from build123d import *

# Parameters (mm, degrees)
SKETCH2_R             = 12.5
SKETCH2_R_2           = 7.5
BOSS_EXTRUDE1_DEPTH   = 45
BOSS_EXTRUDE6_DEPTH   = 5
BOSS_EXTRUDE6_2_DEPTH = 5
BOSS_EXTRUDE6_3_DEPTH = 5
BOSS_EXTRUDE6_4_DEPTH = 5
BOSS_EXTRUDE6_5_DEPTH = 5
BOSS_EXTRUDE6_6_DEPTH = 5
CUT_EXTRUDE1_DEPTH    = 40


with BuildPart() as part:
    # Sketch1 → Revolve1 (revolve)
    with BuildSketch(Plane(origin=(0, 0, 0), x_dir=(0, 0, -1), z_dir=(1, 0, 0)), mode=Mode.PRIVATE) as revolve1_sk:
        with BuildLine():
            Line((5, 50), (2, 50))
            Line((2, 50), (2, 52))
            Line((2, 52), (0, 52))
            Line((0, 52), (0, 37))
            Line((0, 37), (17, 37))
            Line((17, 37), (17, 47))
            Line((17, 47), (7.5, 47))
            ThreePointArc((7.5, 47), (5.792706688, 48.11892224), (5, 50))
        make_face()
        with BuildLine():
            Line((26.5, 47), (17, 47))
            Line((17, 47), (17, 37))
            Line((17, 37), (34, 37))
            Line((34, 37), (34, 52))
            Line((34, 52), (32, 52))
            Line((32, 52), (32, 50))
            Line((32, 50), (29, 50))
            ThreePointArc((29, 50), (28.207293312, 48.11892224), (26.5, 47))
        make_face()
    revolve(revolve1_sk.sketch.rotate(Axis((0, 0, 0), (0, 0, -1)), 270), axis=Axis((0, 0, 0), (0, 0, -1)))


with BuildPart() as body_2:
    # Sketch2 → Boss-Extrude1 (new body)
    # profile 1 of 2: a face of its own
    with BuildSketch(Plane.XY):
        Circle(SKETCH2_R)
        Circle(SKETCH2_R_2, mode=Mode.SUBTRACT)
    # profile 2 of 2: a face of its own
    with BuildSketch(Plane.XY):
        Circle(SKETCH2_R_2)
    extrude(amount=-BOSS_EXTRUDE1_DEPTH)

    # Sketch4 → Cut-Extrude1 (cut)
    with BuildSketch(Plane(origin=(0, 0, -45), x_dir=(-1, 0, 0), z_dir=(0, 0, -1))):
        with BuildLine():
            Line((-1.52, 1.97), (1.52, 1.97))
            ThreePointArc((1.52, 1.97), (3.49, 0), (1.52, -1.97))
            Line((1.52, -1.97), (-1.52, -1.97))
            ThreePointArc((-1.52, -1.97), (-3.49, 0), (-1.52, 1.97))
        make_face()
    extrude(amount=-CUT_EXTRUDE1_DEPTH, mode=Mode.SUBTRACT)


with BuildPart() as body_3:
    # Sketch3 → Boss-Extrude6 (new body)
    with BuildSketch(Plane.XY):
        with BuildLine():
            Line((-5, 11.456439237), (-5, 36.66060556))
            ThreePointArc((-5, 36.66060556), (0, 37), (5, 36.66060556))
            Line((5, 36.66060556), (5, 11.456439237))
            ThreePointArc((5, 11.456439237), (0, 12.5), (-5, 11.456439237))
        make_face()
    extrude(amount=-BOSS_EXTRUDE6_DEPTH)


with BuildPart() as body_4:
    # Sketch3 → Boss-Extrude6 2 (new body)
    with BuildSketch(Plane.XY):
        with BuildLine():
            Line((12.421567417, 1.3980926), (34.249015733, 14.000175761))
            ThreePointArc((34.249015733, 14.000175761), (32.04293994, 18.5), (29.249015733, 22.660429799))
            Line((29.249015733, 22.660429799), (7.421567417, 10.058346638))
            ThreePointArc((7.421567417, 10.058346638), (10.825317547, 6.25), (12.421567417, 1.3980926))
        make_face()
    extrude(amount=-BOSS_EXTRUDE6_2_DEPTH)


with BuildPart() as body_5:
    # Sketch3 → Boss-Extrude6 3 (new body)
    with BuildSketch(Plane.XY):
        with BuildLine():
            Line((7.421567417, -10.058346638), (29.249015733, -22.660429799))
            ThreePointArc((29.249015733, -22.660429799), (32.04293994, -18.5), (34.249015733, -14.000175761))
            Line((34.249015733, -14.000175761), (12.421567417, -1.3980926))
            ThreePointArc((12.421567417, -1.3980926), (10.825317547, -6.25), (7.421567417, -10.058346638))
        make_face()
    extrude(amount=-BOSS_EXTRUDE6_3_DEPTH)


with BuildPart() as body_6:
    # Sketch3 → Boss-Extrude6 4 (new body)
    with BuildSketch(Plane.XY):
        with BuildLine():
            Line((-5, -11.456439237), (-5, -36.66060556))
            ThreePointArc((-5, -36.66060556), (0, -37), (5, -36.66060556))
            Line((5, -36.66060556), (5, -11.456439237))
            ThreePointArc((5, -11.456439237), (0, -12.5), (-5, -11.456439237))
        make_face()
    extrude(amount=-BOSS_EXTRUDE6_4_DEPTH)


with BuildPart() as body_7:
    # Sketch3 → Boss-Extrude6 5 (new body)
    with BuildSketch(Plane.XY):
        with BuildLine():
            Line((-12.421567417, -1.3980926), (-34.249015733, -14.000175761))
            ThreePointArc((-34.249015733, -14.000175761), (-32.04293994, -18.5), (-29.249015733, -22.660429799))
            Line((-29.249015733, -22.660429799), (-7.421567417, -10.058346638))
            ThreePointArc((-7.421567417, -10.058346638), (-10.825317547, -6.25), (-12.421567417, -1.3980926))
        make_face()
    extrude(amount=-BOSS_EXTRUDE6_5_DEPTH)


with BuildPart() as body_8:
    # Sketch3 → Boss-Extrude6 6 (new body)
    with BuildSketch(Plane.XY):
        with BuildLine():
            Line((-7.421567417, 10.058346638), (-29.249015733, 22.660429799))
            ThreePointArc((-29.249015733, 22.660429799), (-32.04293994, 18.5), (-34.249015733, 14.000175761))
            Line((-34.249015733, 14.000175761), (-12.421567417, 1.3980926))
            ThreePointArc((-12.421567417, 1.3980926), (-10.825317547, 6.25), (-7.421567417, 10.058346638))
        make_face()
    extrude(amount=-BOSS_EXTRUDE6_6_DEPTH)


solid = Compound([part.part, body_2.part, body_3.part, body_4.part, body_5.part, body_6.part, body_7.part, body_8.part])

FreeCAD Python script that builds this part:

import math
import FreeCAD as App
import Part
import Sketcher
Q = App.Units.Quantity

doc = App.newDocument("Part")
body = doc.addObject("PartDesign::Body", "Body")

# Sketch on YZ plane
sketch1 = doc.addObject("Sketcher::SketchObject", "Sketch")
body.addObject(sketch1)
sketch1.AttachmentSupport = (doc.YZ_Plane, [""])
sketch1.MapMode = "FlatFace"
sketch1.addGeometry(Part.LineSegment(App.Vector(50, -5, 0), App.Vector(50, -2, 0)), False)
sketch1.addGeometry(Part.LineSegment(App.Vector(50, -2, 0), App.Vector(52, -2, 0)), False)
sketch1.addGeometry(Part.LineSegment(App.Vector(52, -2, 0), App.Vector(52, 0, 0)), False)
sketch1.addGeometry(Part.LineSegment(App.Vector(52, 0, 0), App.Vector(37, 0, 0)), False)
sketch1.addGeometry(Part.LineSegment(App.Vector(37, 0, 0), App.Vector(37, -34, 0)), False)
sketch1.addGeometry(Part.LineSegment(App.Vector(37, -34, 0), App.Vector(52, -34, 0)), False)
sketch1.addGeometry(Part.LineSegment(App.Vector(52, -34, 0), App.Vector(52, -32, 0)), False)
sketch1.addGeometry(Part.LineSegment(App.Vector(52, -32, 0), App.Vector(50, -32, 0)), False)
sketch1.addGeometry(Part.LineSegment(App.Vector(50, -32, 0), App.Vector(50, -29, 0)), False)
sketch1.addGeometry(Part.ArcOfCircle(Part.Circle(App.Vector(50.4, -25.5, 0), App.Vector(0, 0, 1), 3.5), math.radians(-164), math.radians(-96)), False)
sketch1.addGeometry(Part.LineSegment(App.Vector(47, -26.5, 0), App.Vector(47, -7.5, 0)), False)
sketch1.addGeometry(Part.ArcOfCircle(Part.Circle(App.Vector(50.4, -8.5, 0), App.Vector(0, 0, 1), 3.5), math.radians(96), math.radians(164)), False)
sketch1.addConstraint(Sketcher.Constraint("Coincident", 0, 2, 1, 1))
sketch1.addConstraint(Sketcher.Constraint("Coincident", 1, 2, 2, 1))
sketch1.addConstraint(Sketcher.Constraint("Coincident", 2, 2, 3, 1))
sketch1.addConstraint(Sketcher.Constraint("Coincident", 3, 2, 4, 1))
sketch1.addConstraint(Sketcher.Constraint("Coincident", 4, 2, 5, 1))
sketch1.addConstraint(Sketcher.Constraint("Coincident", 5, 2, 6, 1))
sketch1.addConstraint(Sketcher.Constraint("Coincident", 6, 2, 7, 1))
sketch1.addConstraint(Sketcher.Constraint("Coincident", 7, 2, 8, 1))
sketch1.addConstraint(Sketcher.Constraint("Coincident", 8, 2, 9, 2))
sketch1.addConstraint(Sketcher.Constraint("Coincident", 9, 1, 10, 1))
sketch1.addConstraint(Sketcher.Constraint("Coincident", 10, 2, 11, 2))
sketch1.addConstraint(Sketcher.Constraint("Coincident", 11, 1, 0, 1))
sketch1.addConstraint(Sketcher.Constraint("Vertical", 0))
sketch1.addConstraint(Sketcher.Constraint("Horizontal", 1))
sketch1.addConstraint(Sketcher.Constraint("Vertical", 2))
sketch1.addConstraint(Sketcher.Constraint("Horizontal", 3))
sketch1.addConstraint(Sketcher.Constraint("Vertical", 4))
sketch1.addConstraint(Sketcher.Constraint("Horizontal", 5))
sketch1.addConstraint(Sketcher.Constraint("Vertical", 6))
sketch1.addConstraint(Sketcher.Constraint("Horizontal", 7))
sketch1.addConstraint(Sketcher.Constraint("Vertical", 8))
sketch1.addConstraint(Sketcher.Constraint("Vertical", 10))
sketch1.addConstraint(Sketcher.Constraint("Equal", 9, 11))
sketch1.addConstraint(Sketcher.Constraint("PointOnObject", 2, 2, -1))
sketch1.addConstraint(Sketcher.Constraint("Vertical", 9, 3, 11, 3))
sketch1.addConstraint(Sketcher.Constraint("Vertical", 2, 2, 5, 2))
sketch1.addConstraint(Sketcher.Constraint("Vertical", 0, 2, 7, 2))
sketch1.addConstraint(Sketcher.Constraint("Equal", 7, 2))
sketch1.addConstraint(Sketcher.Constraint("Equal", 2, 6))
sketch1.addConstraint(Sketcher.Constraint("Equal", 0, 8))
sketch1.addConstraint(Sketcher.Constraint("Radius", 9, 3.5))
sketch1.addConstraint(Sketcher.Constraint("DistanceX", 1, 1, 1, 2, 2.0))
sketch1.addConstraint(Sketcher.Constraint("DistanceX", 3, 2, 3, 1, 15.0))
sketch1.addConstraint(Sketcher.Constraint("DistanceY", 0, 1, 0, 2, 3.0))
sketch1.addConstraint(Sketcher.Constraint("DistanceY", 4, 2, 4, 1, 34.0))
sketch1.addConstraint(Sketcher.Constraint("DistanceY", 10, 1, 10, 2, 19.0))
sketch1.addConstraint(Sketcher.Constraint("DistanceX", -1, 1, 0, 2, 50.0))
sketch1.addConstraint(Sketcher.Constraint("DistanceX", -1, 1, 9, 1, 47.0))
revolution = doc.addObject("PartDesign::Revolution", "Revolution")
body.addObject(revolution)
revolution.Profile = sketch1
revolution.ReferenceAxis = (sketch1, ["V_Axis"])
revolution.Angle = 360
body2 = doc.addObject("PartDesign::Body", "Body001")

# Sketch on XY plane
sketch2 = doc.addObject("Sketcher::SketchObject", "Sketch001")
body2.addObject(sketch2)
sketch2.AttachmentSupport = (doc.getObject("XY_Plane001"), [""])
sketch2.MapMode = "FlatFace"
sketch2.addGeometry(Part.Circle(App.Vector(0, 0, 0), App.Vector(0, 0, 1), 12), False)
sketch2.addConstraint(Sketcher.Constraint("Coincident", 0, 3, -1, 1))
sketch2.addConstraint(Sketcher.Constraint("Diameter", 0, 25.0))
pad1 = doc.addObject("PartDesign::Pad", "Pad")
body2.addObject(pad1)
pad1.Profile = sketch2
pad1.Length = 45
pad1.Reversed = True

# Sketch on XY plane
sketch3 = doc.addObject("Sketcher::SketchObject", "Sketch002")
body2.addObject(sketch3)
sketch3.AttachmentSupport = (doc.getObject("XY_Plane001"), [""])
sketch3.MapMode = "FlatFace"
sketch3.AttachmentOffset = App.Placement(App.Vector(0, 0, -45), App.Rotation())
sketch3.addGeometry(Part.LineSegment(App.Vector(-1.5, 2, 0), App.Vector(1.5, 2, 0)), False)
sketch3.addGeometry(Part.ArcOfCircle(Part.Circle(App.Vector(1.5, 0, 0), App.Vector(0, 0, 1), 2), math.radians(-90), math.radians(90)), False)
sketch3.addGeometry(Part.LineSegment(App.Vector(1.5, -2, 0), App.Vector(-1.5, -2, 0)), False)
sketch3.addGeometry(Part.ArcOfCircle(Part.Circle(App.Vector(-1.5, 0, 0), App.Vector(0, 0, 1), 2), math.radians(90), math.radians(270)), False)
sketch3.addConstraint(Sketcher.Constraint("Tangent", 0, 2, 1, 2))
sketch3.addConstraint(Sketcher.Constraint("Tangent", 1, 1, 2, 1))
sketch3.addConstraint(Sketcher.Constraint("Tangent", 2, 2, 3, 2))
sketch3.addConstraint(Sketcher.Constraint("Tangent", 3, 1, 0, 1))
sketch3.addConstraint(Sketcher.Constraint("Horizontal", 0))
sketch3.addConstraint(Sketcher.Constraint("Horizontal", 2))
sketch3.addConstraint(Sketcher.Constraint("Symmetric", 1, 3, 3, 3, -1, 1))
sketch3.addConstraint(Sketcher.Constraint("Radius", 1, 1.97))
sketch3.addConstraint(Sketcher.Constraint("DistanceX", 0, 1, 0, 2, 3.04))
pocket1 = doc.addObject("PartDesign::Pocket", "Pocket")
body2.addObject(pocket1)
pocket1.Profile = sketch3
pocket1.Length = 40
pocket1.Reversed = True
body3 = doc.addObject("PartDesign::Body", "Body002")

# Sketch on XY plane
sketch4 = doc.addObject("Sketcher::SketchObject", "Sketch003")
body3.addObject(sketch4)
sketch4.AttachmentSupport = (doc.getObject("XY_Plane002"), [""])
sketch4.MapMode = "FlatFace"
sketch4.addGeometry(Part.LineSegment(App.Vector(-5, 37, 0), App.Vector(-5, 11, 0)), False)
sketch4.addGeometry(Part.ArcOfCircle(Part.Circle(App.Vector(0, 0, 0), App.Vector(0, 0, 1), 12), math.radians(66), math.radians(114)), False)
sketch4.addGeometry(Part.LineSegment(App.Vector(5, 11, 0), App.Vector(5, 37, 0)), False)
sketch4.addGeometry(Part.ArcOfCircle(Part.Circle(App.Vector(0, 0, 0), App.Vector(0, 0, 1), 37), math.radians(82.23), math.radians(97.77)), False)
sketch4.addConstraint(Sketcher.Constraint("Coincident", 0, 2, 1, 2))
sketch4.addConstraint(Sketcher.Constraint("Coincident", 1, 1, 2, 1))
sketch4.addConstraint(Sketcher.Constraint("Coincident", 2, 2, 3, 1))
sketch4.addConstraint(Sketcher.Constraint("Coincident", 3, 2, 0, 1))
sketch4.addConstraint(Sketcher.Constraint("Vertical", 0))
sketch4.addConstraint(Sketcher.Constraint("Vertical", 2))
sketch4.addConstraint(Sketcher.Constraint("Coincident", 1, 3, -1, 1))
sketch4.addConstraint(Sketcher.Constraint("Coincident", 3, 3, -1, 1))
sketch4.addConstraint(Sketcher.Constraint("Horizontal", 0, 2, 1, 1))
sketch4.addConstraint(Sketcher.Constraint("Radius", 3, 37.0))
sketch4.addConstraint(Sketcher.Constraint("Radius", 1, 12.5))
sketch4.addConstraint(Sketcher.Constraint("DistanceX", 0, 2, -1, 1, 5.0))
pad2 = doc.addObject("PartDesign::Pad", "Pad001")
body3.addObject(pad2)
pad2.Profile = sketch4
pad2.Length = 5
pad2.Reversed = True
body4 = doc.addObject("PartDesign::Body", "Body003")

# Sketch on XY plane
sketch5 = doc.addObject("Sketcher::SketchObject", "Sketch004")
body4.addObject(sketch5)
sketch5.AttachmentSupport = (doc.getObject("XY_Plane003"), [""])
sketch5.MapMode = "FlatFace"
sketch5.addGeometry(Part.LineSegment(App.Vector(12, 1, 0), App.Vector(34, 14, 0)), False)
sketch5.addGeometry(Part.ArcOfCircle(Part.Circle(App.Vector(0, 0, 0), App.Vector(0, 0, 1), 37), math.radians(22.23), math.radians(37.77)), False)
sketch5.addGeometry(Part.LineSegment(App.Vector(29, 23, 0), App.Vector(7, 10, 0)), False)
sketch5.addGeometry(Part.ArcOfCircle(Part.Circle(App.Vector(0, 0, 0), App.Vector(0, 0, 1), 13), math.radians(6), math.radians(54)), False)
sketch5.addConstraint(Sketcher.Constraint("Coincident", 0, 2, 1, 1))
sketch5.addConstraint(Sketcher.Constraint("Coincident", 1, 2, 2, 1))
sketch5.addConstraint(Sketcher.Constraint("Coincident", 2, 2, 3, 2))
sketch5.addConstraint(Sketcher.Constraint("Coincident", 3, 1, 0, 1))
sketch5.addConstraint(Sketcher.Constraint("Coincident", 1, 3, -1, 1))
sketch5.addConstraint(Sketcher.Constraint("Coincident", 3, 3, -1, 1))
sketch5.addConstraint(Sketcher.Constraint("Parallel", 0, 2))
sketch5.addConstraint(Sketcher.Constraint("Equal", 0, 2))
sketch5.addConstraint(Sketcher.Constraint("Radius", 1, 37.0))
sketch5.addConstraint(Sketcher.Constraint("Radius", 3, 12.5))
sketch5.addConstraint(Sketcher.Constraint("Angle", 0, Q("30 deg")))
sketch5.addConstraint(Sketcher.Constraint("DistanceX", 1, 2, 0, 2, 5.0))
pad3 = doc.addObject("PartDesign::Pad", "Pad002")
body4.addObject(pad3)
pad3.Profile = sketch5
pad3.Length = 5
pad3.Reversed = True
body5 = doc.addObject("PartDesign::Body", "Body004")

# Sketch on XY plane
sketch6 = doc.addObject("Sketcher::SketchObject", "Sketch005")
body5.addObject(sketch6)
sketch6.AttachmentSupport = (doc.getObject("XY_Plane004"), [""])
sketch6.MapMode = "FlatFace"
sketch6.addGeometry(Part.LineSegment(App.Vector(7, -10, 0), App.Vector(29, -23, 0)), False)
sketch6.addGeometry(Part.ArcOfCircle(Part.Circle(App.Vector(0, 0, 0), App.Vector(0, 0, 1), 37), math.radians(-37.77), math.radians(-22.23)), False)
sketch6.addGeometry(Part.LineSegment(App.Vector(34, -14, 0), App.Vector(12, -1, 0)), False)
sketch6.addGeometry(Part.ArcOfCircle(Part.Circle(App.Vector(0, 0, 0), App.Vector(0, 0, 1), 13), math.radians(-54), math.radians(-6)), False)
sketch6.addConstraint(Sketcher.Constraint("Coincident", 0, 2, 1, 1))
sketch6.addConstraint(Sketcher.Constraint("Coincident", 1, 2, 2, 1))
sketch6.addConstraint(Sketcher.Constraint("Coincident", 2, 2, 3, 2))
sketch6.addConstraint(Sketcher.Constraint("Coincident", 3, 1, 0, 1))
sketch6.addConstraint(Sketcher.Constraint("Coincident", 1, 3, -1, 1))
sketch6.addConstraint(Sketcher.Constraint("Coincident", 3, 3, -1, 1))
sketch6.addConstraint(Sketcher.Constraint("Parallel", 0, 2))
sketch6.addConstraint(Sketcher.Constraint("Equal", 0, 2))
sketch6.addConstraint(Sketcher.Constraint("Radius", 1, 37.0))
sketch6.addConstraint(Sketcher.Constraint("Radius", 3, 12.5))
sketch6.addConstraint(Sketcher.Constraint("Angle", 0, Q("-30 deg")))
sketch6.addConstraint(Sketcher.Constraint("DistanceX", 0, 2, 1, 2, 5.0))
pad4 = doc.addObject("PartDesign::Pad", "Pad003")
body5.addObject(pad4)
pad4.Profile = sketch6
pad4.Length = 5
pad4.Reversed = True
body6 = doc.addObject("PartDesign::Body", "Body005")

# Sketch on XY plane
sketch7 = doc.addObject("Sketcher::SketchObject", "Sketch006")
body6.addObject(sketch7)
sketch7.AttachmentSupport = (doc.getObject("XY_Plane005"), [""])
sketch7.MapMode = "FlatFace"
sketch7.addGeometry(Part.LineSegment(App.Vector(-5, -11, 0), App.Vector(-5, -37, 0)), False)
sketch7.addGeometry(Part.ArcOfCircle(Part.Circle(App.Vector(0, 0, 0), App.Vector(0, 0, 1), 37), math.radians(-97.77), math.radians(-82.23)), False)
sketch7.addGeometry(Part.LineSegment(App.Vector(5, -37, 0), App.Vector(5, -11, 0)), False)
sketch7.addGeometry(Part.ArcOfCircle(Part.Circle(App.Vector(0, 0, 0), App.Vector(0, 0, 1), 12), math.radians(-114), math.radians(-66)), False)
sketch7.addConstraint(Sketcher.Constraint("Coincident", 0, 2, 1, 1))
sketch7.addConstraint(Sketcher.Constraint("Coincident", 1, 2, 2, 1))
sketch7.addConstraint(Sketcher.Constraint("Coincident", 2, 2, 3, 2))
sketch7.addConstraint(Sketcher.Constraint("Coincident", 3, 1, 0, 1))
sketch7.addConstraint(Sketcher.Constraint("Vertical", 0))
sketch7.addConstraint(Sketcher.Constraint("Vertical", 2))
sketch7.addConstraint(Sketcher.Constraint("Coincident", 1, 3, -1, 1))
sketch7.addConstraint(Sketcher.Constraint("Coincident", 3, 3, -1, 1))
sketch7.addConstraint(Sketcher.Constraint("Horizontal", 0, 2, 1, 2))
sketch7.addConstraint(Sketcher.Constraint("Radius", 1, 37.0))
sketch7.addConstraint(Sketcher.Constraint("Radius", 3, 12.5))
sketch7.addConstraint(Sketcher.Constraint("DistanceX", 0, 2, -1, 1, 5.0))
pad5 = doc.addObject("PartDesign::Pad", "Pad004")
body6.addObject(pad5)
pad5.Profile = sketch7
pad5.Length = 5
pad5.Reversed = True
body7 = doc.addObject("PartDesign::Body", "Body006")

# Sketch on XY plane
sketch8 = doc.addObject("Sketcher::SketchObject", "Sketch007")
body7.addObject(sketch8)
sketch8.AttachmentSupport = (doc.getObject("XY_Plane006"), [""])
sketch8.MapMode = "FlatFace"
sketch8.addGeometry(Part.LineSegment(App.Vector(-12, -1, 0), App.Vector(-34, -14, 0)), False)
sketch8.addGeometry(Part.ArcOfCircle(Part.Circle(App.Vector(0, 0, 0), App.Vector(0, 0, 1), 37), math.radians(-157.77), math.radians(-142.23)), False)
sketch8.addGeometry(Part.LineSegment(App.Vector(-29, -23, 0), App.Vector(-7, -10, 0)), False)
sketch8.addGeometry(Part.ArcOfCircle(Part.Circle(App.Vector(0, 0, 0), App.Vector(0, 0, 1), 13), math.radians(-174), math.radians(-126)), False)
sketch8.addConstraint(Sketcher.Constraint("Coincident", 0, 2, 1, 1))
sketch8.addConstraint(Sketcher.Constraint("Coincident", 1, 2, 2, 1))
sketch8.addConstraint(Sketcher.Constraint("Coincident", 2, 2, 3, 2))
sketch8.addConstraint(Sketcher.Constraint("Coincident", 3, 1, 0, 1))
sketch8.addConstraint(Sketcher.Constraint("Coincident", 1, 3, -1, 1))
sketch8.addConstraint(Sketcher.Constraint("Coincident", 3, 3, -1, 1))
sketch8.addConstraint(Sketcher.Constraint("Parallel", 0, 2))
sketch8.addConstraint(Sketcher.Constraint("Equal", 0, 2))
sketch8.addConstraint(Sketcher.Constraint("Radius", 1, 37.0))
sketch8.addConstraint(Sketcher.Constraint("Radius", 3, 12.5))
sketch8.addConstraint(Sketcher.Constraint("Angle", 0, Q("-150 deg")))
sketch8.addConstraint(Sketcher.Constraint("DistanceX", 0, 2, 1, 2, 5.0))
pad6 = doc.addObject("PartDesign::Pad", "Pad005")
body7.addObject(pad6)
pad6.Profile = sketch8
pad6.Length = 5
pad6.Reversed = True
body8 = doc.addObject("PartDesign::Body", "Body007")

# Sketch on XY plane
sketch9 = doc.addObject("Sketcher::SketchObject", "Sketch008")
body8.addObject(sketch9)
sketch9.AttachmentSupport = (doc.getObject("XY_Plane007"), [""])
sketch9.MapMode = "FlatFace"
sketch9.addGeometry(Part.LineSegment(App.Vector(-7, 10, 0), App.Vector(-29, 23, 0)), False)
sketch9.addGeometry(Part.ArcOfCircle(Part.Circle(App.Vector(0, 0, 0), App.Vector(0, 0, 1), 37), math.radians(142.23), math.radians(157.77)), False)
sketch9.addGeometry(Part.LineSegment(App.Vector(-34, 14, 0), App.Vector(-12, 1, 0)), False)
sketch9.addGeometry(Part.ArcOfCircle(Part.Circle(App.Vector(0, 0, 0), App.Vector(0, 0, 1), 13), math.radians(126), math.radians(174)), False)
sketch9.addConstraint(Sketcher.Constraint("Coincident", 0, 2, 1, 1))
sketch9.addConstraint(Sketcher.Constraint("Coincident", 1, 2, 2, 1))
sketch9.addConstraint(Sketcher.Constraint("Coincident", 2, 2, 3, 2))
sketch9.addConstraint(Sketcher.Constraint("Coincident", 3, 1, 0, 1))
sketch9.addConstraint(Sketcher.Constraint("Coincident", 1, 3, -1, 1))
sketch9.addConstraint(Sketcher.Constraint("Coincident", 3, 3, -1, 1))
sketch9.addConstraint(Sketcher.Constraint("Parallel", 0, 2))
sketch9.addConstraint(Sketcher.Constraint("Equal", 0, 2))
sketch9.addConstraint(Sketcher.Constraint("Radius", 1, 37.0))
sketch9.addConstraint(Sketcher.Constraint("Radius", 3, 12.5))
sketch9.addConstraint(Sketcher.Constraint("Angle", 0, Q("150 deg")))
sketch9.addConstraint(Sketcher.Constraint("DistanceX", 1, 2, 0, 2, 5.0))
pad7 = doc.addObject("PartDesign::Pad", "Pad006")
body8.addObject(pad7)
pad7.Profile = sketch9
pad7.Length = 5
pad7.Reversed = True

doc.recompute()
